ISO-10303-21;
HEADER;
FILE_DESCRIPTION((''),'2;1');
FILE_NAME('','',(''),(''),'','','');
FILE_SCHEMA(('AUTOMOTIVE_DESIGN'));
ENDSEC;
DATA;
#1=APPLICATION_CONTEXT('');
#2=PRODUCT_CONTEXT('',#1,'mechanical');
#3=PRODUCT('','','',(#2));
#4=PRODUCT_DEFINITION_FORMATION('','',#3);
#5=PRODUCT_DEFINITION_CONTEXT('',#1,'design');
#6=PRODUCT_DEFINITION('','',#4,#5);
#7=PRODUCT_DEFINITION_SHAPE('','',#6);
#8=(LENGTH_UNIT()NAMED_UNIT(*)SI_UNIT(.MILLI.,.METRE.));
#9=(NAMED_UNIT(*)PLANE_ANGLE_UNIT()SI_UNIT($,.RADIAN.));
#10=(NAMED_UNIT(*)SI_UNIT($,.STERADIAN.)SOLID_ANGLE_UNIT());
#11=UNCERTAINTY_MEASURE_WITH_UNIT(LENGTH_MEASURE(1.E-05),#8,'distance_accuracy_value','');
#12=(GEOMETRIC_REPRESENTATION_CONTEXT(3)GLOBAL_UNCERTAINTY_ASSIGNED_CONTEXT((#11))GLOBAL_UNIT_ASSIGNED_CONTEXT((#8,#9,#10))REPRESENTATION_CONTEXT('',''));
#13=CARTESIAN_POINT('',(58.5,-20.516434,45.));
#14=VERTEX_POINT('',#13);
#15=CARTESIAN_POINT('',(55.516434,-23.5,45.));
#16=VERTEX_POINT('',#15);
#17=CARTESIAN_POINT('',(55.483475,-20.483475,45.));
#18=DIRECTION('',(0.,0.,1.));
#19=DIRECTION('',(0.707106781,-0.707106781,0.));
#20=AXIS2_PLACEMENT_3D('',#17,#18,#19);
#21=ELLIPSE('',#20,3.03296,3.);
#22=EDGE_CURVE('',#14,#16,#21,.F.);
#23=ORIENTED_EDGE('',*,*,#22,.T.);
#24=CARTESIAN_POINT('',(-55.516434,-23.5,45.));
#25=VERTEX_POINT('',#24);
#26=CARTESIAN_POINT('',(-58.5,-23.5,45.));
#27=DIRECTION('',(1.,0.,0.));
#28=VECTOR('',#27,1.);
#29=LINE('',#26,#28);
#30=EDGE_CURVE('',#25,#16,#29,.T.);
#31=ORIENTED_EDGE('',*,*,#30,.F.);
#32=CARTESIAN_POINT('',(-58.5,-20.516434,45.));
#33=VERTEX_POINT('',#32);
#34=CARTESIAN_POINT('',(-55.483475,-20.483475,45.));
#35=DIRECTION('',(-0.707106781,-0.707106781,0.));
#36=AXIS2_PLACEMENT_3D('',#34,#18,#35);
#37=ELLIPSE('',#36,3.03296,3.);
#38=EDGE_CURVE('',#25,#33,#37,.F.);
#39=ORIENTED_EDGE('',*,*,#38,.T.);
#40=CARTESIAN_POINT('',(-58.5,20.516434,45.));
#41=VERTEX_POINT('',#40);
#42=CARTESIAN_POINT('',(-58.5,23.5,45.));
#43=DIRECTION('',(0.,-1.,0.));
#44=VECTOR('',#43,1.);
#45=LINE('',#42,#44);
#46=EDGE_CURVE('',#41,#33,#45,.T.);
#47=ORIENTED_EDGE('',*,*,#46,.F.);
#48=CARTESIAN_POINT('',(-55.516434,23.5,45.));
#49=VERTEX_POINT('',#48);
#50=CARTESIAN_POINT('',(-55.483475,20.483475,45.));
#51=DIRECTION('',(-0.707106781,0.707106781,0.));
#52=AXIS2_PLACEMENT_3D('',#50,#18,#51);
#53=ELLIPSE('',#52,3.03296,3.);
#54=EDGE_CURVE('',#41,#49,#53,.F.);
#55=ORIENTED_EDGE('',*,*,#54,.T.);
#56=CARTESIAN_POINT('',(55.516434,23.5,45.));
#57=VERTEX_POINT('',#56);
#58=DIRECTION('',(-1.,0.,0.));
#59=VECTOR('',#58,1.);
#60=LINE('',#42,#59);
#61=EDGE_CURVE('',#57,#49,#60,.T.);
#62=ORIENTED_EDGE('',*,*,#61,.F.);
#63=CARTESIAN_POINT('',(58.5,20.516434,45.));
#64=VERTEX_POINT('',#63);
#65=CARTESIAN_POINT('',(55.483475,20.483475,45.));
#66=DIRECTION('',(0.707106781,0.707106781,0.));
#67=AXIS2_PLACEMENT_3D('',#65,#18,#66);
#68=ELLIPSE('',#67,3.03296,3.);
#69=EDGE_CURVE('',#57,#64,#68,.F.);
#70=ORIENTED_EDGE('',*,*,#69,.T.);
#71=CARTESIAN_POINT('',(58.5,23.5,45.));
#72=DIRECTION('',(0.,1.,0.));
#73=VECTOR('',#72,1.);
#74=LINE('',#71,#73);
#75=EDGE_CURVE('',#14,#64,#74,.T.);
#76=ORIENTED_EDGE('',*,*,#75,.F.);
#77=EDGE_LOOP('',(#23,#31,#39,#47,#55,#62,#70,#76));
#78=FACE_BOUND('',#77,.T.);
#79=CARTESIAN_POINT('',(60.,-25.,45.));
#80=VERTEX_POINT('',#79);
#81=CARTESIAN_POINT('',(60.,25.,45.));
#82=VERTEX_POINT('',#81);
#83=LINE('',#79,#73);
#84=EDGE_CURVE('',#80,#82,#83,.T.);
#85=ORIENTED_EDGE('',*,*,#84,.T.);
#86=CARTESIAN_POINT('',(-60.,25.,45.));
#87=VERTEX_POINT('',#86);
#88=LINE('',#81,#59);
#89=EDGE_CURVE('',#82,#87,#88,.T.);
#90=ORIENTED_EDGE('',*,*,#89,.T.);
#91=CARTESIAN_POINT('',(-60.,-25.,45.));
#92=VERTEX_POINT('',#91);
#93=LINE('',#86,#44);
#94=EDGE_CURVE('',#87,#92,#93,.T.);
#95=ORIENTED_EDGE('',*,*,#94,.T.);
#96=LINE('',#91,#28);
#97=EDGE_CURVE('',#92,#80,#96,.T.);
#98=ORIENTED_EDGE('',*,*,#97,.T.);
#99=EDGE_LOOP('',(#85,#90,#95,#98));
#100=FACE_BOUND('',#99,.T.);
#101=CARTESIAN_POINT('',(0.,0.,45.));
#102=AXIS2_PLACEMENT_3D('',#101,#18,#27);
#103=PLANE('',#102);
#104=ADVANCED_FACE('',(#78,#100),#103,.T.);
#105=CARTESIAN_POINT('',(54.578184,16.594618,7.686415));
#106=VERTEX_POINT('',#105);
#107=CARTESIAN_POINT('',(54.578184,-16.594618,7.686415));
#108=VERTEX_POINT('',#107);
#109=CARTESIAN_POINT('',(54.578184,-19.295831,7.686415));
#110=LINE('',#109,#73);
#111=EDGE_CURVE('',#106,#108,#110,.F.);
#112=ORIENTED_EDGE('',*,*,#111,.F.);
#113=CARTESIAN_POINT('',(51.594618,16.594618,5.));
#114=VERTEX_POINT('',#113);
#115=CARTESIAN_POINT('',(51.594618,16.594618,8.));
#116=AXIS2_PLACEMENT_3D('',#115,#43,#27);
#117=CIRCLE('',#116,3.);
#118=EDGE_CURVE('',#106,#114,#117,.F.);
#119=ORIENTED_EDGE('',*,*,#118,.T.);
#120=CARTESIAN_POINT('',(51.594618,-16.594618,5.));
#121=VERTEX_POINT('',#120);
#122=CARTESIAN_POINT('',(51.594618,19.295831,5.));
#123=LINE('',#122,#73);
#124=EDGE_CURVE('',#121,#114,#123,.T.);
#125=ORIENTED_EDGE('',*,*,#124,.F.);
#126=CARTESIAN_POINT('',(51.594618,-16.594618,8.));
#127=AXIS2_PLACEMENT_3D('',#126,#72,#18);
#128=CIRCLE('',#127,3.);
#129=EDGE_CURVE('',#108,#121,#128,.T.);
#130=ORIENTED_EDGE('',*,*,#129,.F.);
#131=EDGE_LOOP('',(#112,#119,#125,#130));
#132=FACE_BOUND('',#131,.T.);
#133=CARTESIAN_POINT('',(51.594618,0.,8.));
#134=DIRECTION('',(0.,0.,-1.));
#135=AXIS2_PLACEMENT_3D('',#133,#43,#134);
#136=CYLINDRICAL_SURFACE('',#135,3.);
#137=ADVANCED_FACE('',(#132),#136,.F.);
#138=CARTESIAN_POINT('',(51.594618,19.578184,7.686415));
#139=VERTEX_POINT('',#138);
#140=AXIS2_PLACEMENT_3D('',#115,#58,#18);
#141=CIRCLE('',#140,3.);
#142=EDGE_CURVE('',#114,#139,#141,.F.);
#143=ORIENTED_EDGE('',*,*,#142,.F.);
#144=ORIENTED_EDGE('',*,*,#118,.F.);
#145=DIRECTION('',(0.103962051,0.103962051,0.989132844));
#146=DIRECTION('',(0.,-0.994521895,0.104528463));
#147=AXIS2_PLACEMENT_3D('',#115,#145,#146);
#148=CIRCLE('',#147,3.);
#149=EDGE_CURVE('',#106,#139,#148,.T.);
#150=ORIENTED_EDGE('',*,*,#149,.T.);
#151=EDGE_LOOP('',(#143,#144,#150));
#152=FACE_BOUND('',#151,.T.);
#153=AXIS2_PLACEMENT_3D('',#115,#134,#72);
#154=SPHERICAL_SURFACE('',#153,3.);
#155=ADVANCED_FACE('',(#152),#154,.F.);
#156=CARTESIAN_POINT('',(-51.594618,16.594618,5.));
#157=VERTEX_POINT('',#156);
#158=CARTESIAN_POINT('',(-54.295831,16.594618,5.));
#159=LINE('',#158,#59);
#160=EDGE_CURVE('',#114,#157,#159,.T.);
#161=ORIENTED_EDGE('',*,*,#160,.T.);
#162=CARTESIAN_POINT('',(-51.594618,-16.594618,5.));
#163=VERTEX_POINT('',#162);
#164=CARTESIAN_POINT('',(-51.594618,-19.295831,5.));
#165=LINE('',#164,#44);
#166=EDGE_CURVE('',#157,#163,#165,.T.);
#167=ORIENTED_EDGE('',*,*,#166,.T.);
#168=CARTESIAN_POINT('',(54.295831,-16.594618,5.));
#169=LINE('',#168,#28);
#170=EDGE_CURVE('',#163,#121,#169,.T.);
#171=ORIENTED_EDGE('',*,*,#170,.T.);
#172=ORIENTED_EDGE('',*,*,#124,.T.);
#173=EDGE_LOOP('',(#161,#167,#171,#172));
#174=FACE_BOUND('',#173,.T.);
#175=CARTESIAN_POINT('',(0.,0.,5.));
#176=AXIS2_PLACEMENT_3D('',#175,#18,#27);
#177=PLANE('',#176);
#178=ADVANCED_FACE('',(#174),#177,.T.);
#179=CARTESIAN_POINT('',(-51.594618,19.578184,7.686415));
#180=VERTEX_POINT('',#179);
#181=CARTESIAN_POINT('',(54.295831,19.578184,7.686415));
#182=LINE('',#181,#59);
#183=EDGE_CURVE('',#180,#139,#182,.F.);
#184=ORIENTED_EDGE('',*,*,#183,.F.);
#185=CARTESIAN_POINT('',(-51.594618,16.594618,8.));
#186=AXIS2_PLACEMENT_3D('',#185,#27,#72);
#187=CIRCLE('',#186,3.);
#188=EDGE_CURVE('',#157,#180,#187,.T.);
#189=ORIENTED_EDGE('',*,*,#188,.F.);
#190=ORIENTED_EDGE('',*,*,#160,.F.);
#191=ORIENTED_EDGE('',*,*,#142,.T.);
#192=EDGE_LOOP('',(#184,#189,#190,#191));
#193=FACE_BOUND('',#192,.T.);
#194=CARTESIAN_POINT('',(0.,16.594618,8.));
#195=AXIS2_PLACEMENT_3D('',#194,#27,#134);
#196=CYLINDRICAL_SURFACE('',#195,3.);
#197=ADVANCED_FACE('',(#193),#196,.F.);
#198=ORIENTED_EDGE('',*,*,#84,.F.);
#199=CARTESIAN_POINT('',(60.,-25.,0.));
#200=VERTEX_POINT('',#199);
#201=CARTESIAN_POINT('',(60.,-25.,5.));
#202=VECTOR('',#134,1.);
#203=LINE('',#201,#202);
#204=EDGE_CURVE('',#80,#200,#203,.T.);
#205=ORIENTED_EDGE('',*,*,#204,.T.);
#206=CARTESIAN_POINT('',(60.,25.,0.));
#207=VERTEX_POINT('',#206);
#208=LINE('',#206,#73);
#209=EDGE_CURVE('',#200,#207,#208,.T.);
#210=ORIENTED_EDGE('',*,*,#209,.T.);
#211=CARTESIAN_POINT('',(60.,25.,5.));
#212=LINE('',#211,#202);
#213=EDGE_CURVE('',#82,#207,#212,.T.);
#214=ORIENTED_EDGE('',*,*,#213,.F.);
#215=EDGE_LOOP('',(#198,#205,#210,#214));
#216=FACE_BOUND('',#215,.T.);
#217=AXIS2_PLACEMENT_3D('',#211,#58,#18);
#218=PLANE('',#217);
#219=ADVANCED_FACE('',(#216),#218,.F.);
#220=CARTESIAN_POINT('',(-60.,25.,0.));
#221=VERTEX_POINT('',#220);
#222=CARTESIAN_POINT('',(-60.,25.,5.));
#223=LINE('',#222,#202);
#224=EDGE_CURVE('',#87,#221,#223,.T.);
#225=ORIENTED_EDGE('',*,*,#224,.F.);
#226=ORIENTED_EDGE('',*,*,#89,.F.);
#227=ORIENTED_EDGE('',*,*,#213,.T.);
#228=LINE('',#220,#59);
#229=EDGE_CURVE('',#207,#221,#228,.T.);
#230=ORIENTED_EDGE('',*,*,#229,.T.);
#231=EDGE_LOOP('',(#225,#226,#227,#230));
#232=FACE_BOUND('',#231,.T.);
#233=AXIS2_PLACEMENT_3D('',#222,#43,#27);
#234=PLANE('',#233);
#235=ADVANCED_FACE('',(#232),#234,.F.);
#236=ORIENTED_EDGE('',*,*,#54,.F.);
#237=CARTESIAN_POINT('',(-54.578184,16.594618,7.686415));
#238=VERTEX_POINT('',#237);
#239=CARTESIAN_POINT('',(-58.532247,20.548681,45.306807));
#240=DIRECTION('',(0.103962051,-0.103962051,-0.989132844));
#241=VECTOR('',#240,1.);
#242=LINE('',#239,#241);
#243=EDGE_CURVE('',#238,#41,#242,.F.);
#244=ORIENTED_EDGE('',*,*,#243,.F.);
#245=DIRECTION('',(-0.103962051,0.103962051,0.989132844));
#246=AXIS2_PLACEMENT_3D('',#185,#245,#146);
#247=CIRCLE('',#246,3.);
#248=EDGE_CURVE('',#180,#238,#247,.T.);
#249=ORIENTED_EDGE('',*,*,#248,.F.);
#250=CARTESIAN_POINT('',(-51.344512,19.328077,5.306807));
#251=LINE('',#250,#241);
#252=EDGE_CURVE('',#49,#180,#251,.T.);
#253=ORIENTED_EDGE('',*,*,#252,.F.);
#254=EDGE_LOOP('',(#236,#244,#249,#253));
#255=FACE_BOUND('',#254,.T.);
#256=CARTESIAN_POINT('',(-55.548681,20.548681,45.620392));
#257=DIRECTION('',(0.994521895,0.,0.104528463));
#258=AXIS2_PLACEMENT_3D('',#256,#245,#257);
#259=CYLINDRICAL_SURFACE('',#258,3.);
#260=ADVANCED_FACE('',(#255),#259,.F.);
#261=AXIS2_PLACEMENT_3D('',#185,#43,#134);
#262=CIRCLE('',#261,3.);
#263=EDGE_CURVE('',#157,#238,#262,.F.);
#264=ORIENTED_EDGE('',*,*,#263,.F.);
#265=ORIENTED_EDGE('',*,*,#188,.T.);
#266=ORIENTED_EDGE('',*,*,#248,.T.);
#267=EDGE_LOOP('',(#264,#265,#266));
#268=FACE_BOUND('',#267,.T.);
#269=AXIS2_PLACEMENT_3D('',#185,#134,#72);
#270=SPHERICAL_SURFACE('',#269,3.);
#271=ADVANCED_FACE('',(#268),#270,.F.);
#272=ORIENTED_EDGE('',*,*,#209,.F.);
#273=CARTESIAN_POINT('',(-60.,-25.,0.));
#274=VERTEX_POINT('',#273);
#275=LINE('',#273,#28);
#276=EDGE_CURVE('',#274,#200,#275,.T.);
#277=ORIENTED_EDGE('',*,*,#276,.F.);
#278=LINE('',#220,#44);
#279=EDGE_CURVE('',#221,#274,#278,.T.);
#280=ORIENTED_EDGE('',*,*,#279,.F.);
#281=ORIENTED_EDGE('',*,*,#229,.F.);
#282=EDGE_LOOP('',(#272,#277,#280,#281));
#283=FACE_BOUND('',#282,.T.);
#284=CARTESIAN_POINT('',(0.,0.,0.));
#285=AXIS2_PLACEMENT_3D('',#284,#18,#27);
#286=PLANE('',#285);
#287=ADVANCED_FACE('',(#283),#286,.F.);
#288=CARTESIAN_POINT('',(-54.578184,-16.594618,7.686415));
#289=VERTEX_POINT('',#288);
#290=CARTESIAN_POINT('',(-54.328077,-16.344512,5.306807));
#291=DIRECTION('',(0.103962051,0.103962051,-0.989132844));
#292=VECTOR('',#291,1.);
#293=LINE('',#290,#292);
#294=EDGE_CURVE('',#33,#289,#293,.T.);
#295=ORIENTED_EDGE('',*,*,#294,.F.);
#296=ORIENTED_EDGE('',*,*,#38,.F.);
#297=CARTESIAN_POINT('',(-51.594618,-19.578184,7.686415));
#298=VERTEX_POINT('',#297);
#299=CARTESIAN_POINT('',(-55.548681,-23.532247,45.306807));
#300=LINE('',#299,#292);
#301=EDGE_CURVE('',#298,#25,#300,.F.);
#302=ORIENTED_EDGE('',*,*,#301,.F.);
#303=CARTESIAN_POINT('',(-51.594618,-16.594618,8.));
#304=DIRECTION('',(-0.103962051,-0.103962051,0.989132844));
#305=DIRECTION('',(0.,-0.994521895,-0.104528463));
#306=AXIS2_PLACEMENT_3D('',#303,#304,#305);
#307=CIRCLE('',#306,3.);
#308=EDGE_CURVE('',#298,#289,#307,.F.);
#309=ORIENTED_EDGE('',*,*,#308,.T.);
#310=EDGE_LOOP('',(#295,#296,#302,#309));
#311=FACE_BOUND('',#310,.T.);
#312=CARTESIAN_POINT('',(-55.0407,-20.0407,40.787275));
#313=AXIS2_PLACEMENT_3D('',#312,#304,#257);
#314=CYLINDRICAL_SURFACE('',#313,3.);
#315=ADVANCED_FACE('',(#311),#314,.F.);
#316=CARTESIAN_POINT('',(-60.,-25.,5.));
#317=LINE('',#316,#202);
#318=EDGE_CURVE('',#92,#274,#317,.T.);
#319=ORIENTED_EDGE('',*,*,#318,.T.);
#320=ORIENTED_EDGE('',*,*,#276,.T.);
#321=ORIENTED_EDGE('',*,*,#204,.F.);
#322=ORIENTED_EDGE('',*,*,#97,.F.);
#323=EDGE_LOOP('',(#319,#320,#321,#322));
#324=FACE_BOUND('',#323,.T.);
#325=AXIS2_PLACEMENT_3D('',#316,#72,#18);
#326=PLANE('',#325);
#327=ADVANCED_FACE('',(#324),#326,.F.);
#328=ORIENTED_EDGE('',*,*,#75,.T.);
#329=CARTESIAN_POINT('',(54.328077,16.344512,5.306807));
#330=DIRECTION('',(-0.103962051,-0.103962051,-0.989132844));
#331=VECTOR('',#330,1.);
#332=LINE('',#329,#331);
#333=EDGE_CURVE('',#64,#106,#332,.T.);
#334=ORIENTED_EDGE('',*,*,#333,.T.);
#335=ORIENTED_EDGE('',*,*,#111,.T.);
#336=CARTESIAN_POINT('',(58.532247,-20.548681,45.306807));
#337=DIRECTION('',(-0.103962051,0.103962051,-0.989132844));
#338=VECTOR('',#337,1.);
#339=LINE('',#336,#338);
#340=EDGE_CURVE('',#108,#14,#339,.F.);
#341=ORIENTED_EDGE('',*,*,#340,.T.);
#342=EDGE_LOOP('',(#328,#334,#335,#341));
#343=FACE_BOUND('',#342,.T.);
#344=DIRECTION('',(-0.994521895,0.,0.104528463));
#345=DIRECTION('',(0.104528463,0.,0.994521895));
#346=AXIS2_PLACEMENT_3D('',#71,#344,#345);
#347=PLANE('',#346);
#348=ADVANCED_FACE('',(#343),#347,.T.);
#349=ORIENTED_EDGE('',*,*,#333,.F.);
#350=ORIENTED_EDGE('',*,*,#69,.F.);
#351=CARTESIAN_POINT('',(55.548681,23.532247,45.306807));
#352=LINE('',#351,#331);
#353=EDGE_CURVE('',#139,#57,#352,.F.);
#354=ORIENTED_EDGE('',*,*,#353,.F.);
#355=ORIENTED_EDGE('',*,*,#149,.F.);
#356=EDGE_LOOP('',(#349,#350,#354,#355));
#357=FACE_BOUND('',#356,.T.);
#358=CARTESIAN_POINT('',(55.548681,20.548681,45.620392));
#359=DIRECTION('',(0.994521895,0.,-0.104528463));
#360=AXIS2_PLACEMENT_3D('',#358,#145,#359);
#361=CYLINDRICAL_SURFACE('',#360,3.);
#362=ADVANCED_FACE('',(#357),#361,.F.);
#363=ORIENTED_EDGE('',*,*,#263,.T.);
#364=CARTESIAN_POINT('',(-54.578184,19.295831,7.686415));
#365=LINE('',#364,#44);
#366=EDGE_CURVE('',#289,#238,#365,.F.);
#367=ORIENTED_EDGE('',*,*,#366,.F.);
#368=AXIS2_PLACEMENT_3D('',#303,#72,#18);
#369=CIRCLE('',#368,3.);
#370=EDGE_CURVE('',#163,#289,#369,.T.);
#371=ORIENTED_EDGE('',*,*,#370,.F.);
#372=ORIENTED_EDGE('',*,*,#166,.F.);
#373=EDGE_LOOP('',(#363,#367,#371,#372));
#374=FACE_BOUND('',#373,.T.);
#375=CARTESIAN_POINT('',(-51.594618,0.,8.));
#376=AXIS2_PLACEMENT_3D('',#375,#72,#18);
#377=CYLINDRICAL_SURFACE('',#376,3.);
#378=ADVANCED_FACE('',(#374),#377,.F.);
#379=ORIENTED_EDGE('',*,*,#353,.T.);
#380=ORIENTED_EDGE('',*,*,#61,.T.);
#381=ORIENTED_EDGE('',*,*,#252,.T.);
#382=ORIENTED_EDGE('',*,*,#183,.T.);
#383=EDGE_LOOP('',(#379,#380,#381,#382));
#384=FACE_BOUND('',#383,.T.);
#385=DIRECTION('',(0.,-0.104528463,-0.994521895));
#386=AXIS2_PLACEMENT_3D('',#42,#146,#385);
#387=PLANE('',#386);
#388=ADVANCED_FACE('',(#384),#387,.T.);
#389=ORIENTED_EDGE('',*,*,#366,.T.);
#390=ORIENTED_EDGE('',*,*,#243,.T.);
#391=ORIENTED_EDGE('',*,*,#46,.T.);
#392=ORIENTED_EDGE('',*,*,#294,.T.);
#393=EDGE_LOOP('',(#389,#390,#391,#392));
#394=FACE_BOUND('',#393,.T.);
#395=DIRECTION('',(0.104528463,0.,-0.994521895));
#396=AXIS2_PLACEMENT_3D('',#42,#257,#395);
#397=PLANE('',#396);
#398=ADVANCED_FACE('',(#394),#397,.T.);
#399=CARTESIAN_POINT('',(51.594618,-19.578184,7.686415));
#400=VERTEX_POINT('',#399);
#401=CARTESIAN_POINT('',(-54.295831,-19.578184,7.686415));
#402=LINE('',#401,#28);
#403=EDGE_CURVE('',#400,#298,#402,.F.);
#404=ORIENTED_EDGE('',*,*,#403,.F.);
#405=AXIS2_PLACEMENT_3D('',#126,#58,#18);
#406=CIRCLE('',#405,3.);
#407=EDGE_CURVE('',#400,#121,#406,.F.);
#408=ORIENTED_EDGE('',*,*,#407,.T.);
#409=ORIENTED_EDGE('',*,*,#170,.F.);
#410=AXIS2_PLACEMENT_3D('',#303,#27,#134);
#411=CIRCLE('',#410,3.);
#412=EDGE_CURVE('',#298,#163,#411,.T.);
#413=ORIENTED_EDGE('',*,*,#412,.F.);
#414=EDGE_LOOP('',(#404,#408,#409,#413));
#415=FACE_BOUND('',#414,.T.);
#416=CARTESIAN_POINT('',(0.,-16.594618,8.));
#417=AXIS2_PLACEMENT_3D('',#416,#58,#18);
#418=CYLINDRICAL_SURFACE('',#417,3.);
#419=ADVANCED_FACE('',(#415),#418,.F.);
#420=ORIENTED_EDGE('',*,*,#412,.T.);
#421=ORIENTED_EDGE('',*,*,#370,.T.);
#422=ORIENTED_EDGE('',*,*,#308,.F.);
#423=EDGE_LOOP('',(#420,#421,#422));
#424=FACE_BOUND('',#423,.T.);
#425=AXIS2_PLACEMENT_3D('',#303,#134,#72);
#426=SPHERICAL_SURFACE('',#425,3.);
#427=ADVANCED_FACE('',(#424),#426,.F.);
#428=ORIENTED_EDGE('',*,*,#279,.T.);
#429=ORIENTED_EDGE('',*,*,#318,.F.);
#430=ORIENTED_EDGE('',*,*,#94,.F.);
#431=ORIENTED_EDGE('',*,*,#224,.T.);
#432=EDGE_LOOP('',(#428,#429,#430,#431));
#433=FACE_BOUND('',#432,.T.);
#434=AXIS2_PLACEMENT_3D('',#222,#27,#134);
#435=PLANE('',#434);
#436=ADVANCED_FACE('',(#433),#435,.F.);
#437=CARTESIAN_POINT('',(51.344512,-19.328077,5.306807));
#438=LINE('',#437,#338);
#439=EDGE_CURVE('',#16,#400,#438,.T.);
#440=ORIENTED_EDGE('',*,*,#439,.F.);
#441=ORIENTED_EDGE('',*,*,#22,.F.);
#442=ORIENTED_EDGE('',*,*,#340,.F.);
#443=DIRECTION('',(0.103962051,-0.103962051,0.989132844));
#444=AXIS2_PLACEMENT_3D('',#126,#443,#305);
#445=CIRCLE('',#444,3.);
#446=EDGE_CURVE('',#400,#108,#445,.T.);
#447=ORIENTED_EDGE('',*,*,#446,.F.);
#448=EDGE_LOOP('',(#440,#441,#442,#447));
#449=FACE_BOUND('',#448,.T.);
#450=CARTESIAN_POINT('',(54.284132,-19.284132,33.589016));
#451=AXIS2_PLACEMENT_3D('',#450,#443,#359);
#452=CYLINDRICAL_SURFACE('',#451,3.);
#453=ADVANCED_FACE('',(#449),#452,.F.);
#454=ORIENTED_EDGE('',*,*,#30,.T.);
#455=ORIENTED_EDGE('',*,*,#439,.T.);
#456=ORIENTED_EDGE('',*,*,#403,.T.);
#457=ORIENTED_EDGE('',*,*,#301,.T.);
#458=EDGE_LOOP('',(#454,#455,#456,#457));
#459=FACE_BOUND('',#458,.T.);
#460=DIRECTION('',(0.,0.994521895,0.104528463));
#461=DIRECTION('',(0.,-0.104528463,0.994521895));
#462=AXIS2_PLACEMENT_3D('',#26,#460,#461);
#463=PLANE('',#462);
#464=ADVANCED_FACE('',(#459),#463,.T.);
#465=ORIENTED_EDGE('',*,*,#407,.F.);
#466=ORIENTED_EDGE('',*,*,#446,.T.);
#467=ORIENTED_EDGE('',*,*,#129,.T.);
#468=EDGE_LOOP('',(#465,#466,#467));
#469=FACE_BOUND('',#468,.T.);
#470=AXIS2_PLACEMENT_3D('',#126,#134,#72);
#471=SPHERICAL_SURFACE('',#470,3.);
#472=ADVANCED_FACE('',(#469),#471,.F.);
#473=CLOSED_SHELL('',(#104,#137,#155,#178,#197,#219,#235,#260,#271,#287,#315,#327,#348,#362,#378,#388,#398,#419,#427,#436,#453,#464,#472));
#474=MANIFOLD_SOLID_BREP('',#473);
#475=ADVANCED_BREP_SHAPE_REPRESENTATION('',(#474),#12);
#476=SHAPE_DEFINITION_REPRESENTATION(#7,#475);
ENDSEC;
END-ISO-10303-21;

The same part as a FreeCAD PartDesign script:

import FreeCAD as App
import Part
import Sketcher

V = App.Vector


def edges_at(feature, points):
    """Names of the edges that pass closest to the given points."""
    edges = feature.Shape.Edges
    near = lambda p: min(range(len(edges)), key=lambda i: edges[i].distToShape(Part.Vertex(*p))[0])
    return sorted({f"Edge{near(p) + 1}" for p in points})


def faces_at(feature, points):
    """Names of the faces that lie closest to the given points."""
    faces = feature.Shape.Faces
    near = lambda p: min(range(len(faces)), key=lambda i: faces[i].distToShape(Part.Vertex(*p))[0])
    return sorted({f"Face{near(p) + 1}" for p in points})


def add_polygon(sketch, points):
    """Adds a closed chain of lines whose ends are joined by coincident constraints."""
    first, n = sketch.GeometryCount, len(points)
    for a, b in zip(points, points[1:] + points[:1]):
        sketch.addGeometry(Part.LineSegment(App.Vector(*a, 0), App.Vector(*b, 0)), False)
    for i in range(n):
        sketch.addConstraint(Sketcher.Constraint("Coincident", first + i, 2, first + (i + 1) % n, 1))

doc = App.newDocument("Part")
body = doc.addObject("PartDesign::Body", "Body")

# Sketch on XY plane
sketch1 = body.newObject("Sketcher::SketchObject", "Sketch")
sketch1.AttachmentSupport = (doc.getObject("XY_Plane"), [""])
sketch1.MapMode = "FlatFace"
add_polygon(sketch1, [(-60, 25), (-60, -25), (60, -25), (60, 25)])  # lines 0-3
sketch1.addConstraint([
    Sketcher.Constraint("Vertical", 0),
    Sketcher.Constraint("Horizontal", 1),
    Sketcher.Constraint("Vertical", 2),
    Sketcher.Constraint("Horizontal", 3),
    Sketcher.Constraint("Symmetric", 0, 2, 2, 2, -1, 1),
    Sketcher.Constraint("DistanceX", 1, 1, 1, 2, 120.0),
    Sketcher.Constraint("DistanceY", 0, 2, 0, 1, 50.0),
])
pad1 = body.newObject("PartDesign::Pad", "Pad")
pad1.Profile = sketch1
pad1.Length = 5

# Sketch on XY plane
sketch2 = body.newObject("Sketcher::SketchObject", "Sketch001")
sketch2.AttachmentSupport = (doc.getObject("XY_Plane"), [""])
sketch2.MapMode = "FlatFace"
sketch2.AttachmentOffset = App.Placement(V(0, 0, 5), App.Rotation())
add_polygon(sketch2, [(-60, 25), (-60, -25), (60, -25), (60, 25)])  # lines 0-3
add_polygon(sketch2, [(58, -24), (-58, -24), (-58, 24), (58, 24)])  # lines 4-7
sketch2.addConstraint([
    Sketcher.Constraint("Vertical", 0),
    Sketcher.Constraint("Horizontal", 1),
    Sketcher.Constraint("Vertical", 2),
    Sketcher.Constraint("Horizontal", 3),
    Sketcher.Constraint("Horizontal", 4),
    Sketcher.Constraint("Vertical", 5),
    Sketcher.Constraint("Horizontal", 6),
    Sketcher.Constraint("Vertical", 7),
    Sketcher.Constraint("Symmetric", 0, 2, 2, 2, -1, 1),
    Sketcher.Constraint("Symmetric", 4, 2, 6, 2, -1, 1),
    Sketcher.Constraint("DistanceX", 1, 1, 1, 2, 120.0),
    Sketcher.Constraint("DistanceX", 4, 2, 4, 1, 117.0),
    Sketcher.Constraint("DistanceY", 0, 2, 0, 1, 50.0),
    Sketcher.Constraint("DistanceY", 5, 1, 5, 2, 47.0),
])
pad2 = body.newObject("PartDesign::Pad", "Pad001")
pad2.Profile = sketch2
pad2.Length = 40
doc.recompute()

datumplane = body.newObject("PartDesign::Plane", "DatumPlane")
datumplane.AttachmentSupport = (doc.getObject("XY_Plane"), [""])
datumplane.MapMode = "FlatFace"
datumplane.AttachmentOffset = App.Placement(V(0, 0, 45), App.Rotation())
draft = body.newObject("PartDesign::Draft", "Draft")
draft.Base = (pad2, faces_at(pad2, [
    (-58.5, 0, 25),
    (0, 23.5, 25),
    (58.5, 0, 25),
    (0, -23.5, 25),
]))
draft.NeutralPlane = (datumplane, [""])
draft.Angle = 6
draft.Reversed = False
doc.recompute()

fillet = body.newObject("PartDesign::Fillet", "Fillet")
fillet.Base = (draft, edges_at(draft, [
    (54.296, 0, 5),
    (0, 19.296, 5),
    (-54.296, 0, 5),
    (0, -19.296, 5),
    (56.398, 21.398, 25),
    (-56.398, 21.398, 25),
    (-56.398, -21.398, 25),
    (56.398, -21.398, 25),
]))
fillet.Radius = 3

doc.recompute()
